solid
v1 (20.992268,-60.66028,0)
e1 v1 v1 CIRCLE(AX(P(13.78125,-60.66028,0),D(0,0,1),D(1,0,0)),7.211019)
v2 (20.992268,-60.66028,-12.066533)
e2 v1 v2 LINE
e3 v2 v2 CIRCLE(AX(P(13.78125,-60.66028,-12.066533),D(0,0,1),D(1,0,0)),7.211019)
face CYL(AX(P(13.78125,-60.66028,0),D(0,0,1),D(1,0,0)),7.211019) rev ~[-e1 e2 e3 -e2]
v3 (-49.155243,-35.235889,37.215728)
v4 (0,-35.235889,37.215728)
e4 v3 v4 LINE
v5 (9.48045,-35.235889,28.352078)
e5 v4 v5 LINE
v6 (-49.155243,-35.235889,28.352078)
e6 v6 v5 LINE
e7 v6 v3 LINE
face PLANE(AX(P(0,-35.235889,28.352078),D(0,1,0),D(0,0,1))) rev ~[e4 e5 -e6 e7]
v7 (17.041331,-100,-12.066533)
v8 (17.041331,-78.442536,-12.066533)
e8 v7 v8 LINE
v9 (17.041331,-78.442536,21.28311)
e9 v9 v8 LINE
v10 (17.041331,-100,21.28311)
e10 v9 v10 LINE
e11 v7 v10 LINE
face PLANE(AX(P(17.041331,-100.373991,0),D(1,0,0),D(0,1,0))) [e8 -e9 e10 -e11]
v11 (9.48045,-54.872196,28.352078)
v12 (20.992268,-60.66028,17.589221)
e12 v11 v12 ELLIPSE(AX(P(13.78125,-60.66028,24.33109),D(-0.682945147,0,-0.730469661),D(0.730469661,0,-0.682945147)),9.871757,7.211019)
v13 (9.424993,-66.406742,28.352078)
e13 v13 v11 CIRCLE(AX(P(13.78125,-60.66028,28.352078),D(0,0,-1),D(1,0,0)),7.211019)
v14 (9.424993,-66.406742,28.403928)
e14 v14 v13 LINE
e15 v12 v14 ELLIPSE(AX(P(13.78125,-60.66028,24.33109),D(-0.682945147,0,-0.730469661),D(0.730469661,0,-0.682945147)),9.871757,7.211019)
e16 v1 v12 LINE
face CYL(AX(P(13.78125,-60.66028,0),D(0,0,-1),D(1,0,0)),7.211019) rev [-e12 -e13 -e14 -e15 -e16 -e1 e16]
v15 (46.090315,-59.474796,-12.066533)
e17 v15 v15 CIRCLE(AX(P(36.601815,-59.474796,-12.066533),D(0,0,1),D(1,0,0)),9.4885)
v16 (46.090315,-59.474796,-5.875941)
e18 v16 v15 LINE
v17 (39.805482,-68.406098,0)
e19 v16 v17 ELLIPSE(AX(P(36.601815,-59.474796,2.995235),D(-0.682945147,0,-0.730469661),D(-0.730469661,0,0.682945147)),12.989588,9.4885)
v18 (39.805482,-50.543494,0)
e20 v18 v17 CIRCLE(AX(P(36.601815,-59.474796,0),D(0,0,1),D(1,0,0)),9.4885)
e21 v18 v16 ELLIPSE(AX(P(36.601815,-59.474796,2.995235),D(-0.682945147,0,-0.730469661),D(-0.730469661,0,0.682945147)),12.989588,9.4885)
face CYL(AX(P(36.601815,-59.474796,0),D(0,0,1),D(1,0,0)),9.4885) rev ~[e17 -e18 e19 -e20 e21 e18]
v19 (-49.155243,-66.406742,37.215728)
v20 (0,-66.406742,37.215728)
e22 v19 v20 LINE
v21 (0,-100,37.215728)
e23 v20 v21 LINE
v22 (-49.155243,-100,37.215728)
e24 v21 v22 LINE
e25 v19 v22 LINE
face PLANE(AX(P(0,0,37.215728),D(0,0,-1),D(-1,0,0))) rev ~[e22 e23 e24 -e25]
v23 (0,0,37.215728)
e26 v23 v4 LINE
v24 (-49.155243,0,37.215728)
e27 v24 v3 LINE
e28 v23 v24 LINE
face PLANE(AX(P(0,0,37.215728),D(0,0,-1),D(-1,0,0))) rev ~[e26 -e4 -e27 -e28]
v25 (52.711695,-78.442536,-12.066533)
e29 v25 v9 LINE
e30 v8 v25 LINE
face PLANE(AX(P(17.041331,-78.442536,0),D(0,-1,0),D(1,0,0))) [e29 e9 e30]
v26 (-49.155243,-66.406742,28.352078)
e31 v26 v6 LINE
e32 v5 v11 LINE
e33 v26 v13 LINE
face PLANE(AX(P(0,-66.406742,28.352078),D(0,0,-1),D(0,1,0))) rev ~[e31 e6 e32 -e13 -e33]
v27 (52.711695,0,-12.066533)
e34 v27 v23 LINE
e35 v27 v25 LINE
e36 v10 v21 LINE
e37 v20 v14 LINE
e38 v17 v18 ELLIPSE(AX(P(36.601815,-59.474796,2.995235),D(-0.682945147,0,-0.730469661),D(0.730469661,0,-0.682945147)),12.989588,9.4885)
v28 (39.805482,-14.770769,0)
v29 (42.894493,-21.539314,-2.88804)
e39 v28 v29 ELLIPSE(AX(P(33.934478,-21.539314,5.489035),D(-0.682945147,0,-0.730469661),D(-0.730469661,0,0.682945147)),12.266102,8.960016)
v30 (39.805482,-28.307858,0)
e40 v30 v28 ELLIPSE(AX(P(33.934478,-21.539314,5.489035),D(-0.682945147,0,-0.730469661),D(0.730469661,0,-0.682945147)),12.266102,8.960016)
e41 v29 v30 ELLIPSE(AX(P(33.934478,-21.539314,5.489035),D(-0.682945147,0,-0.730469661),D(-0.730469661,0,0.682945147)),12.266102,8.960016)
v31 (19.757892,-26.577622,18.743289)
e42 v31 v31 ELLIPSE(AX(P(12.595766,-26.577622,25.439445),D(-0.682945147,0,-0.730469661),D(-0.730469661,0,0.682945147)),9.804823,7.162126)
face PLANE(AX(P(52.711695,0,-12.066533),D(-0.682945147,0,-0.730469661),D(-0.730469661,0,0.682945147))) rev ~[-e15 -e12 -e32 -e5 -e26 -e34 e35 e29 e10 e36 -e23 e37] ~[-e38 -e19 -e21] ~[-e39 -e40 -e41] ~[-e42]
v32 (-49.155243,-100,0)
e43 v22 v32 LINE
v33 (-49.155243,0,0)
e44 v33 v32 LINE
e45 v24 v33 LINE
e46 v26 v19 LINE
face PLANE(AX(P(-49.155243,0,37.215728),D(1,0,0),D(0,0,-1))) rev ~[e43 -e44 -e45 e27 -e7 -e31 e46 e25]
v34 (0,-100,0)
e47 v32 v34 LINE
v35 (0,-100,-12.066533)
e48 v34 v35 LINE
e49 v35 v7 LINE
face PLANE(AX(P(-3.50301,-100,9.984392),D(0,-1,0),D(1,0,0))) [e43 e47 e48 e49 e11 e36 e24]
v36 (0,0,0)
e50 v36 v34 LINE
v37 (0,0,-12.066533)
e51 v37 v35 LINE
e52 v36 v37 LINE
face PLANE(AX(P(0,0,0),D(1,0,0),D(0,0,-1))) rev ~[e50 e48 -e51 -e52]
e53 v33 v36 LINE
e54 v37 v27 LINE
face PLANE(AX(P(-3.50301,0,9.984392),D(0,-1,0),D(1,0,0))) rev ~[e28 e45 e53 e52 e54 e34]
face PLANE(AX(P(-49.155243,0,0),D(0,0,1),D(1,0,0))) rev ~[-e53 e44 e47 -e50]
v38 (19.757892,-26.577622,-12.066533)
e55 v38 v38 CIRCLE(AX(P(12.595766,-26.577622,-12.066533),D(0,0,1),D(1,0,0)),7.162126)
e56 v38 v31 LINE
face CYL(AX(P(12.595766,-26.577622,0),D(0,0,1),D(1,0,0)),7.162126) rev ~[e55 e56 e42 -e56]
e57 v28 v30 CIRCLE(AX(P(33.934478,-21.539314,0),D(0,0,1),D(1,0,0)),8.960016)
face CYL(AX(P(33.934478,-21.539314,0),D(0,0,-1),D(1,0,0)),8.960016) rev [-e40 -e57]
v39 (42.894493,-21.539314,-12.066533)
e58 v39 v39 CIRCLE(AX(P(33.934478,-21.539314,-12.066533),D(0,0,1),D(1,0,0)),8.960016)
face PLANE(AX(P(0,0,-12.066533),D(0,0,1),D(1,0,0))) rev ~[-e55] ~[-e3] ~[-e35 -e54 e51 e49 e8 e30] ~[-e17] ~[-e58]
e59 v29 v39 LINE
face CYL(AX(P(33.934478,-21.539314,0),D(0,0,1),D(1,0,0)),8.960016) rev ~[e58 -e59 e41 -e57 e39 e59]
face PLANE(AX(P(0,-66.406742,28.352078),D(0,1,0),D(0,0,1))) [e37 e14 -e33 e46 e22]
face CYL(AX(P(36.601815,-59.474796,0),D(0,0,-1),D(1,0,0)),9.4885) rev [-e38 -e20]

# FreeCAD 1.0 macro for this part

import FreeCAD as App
import Part
import Sketcher
Q = App.Units.Quantity

doc = App.newDocument("Part")
body = doc.addObject("PartDesign::Body", "Body")

sketch1 = body.newObject("Sketcher::SketchObject", "Sketch")
sketch1.AttachmentSupport = (doc.getObject("XZ_Plane"), [""])
sketch1.MapMode = "FlatFace"
sketch1.addGeometry([
    Part.LineSegment(App.Vector(-49, 37, 0), App.Vector(-49, 0, 0)),
    Part.LineSegment(App.Vector(-49, 0, 0), App.Vector(0, 0, 0)),
    Part.LineSegment(App.Vector(0, 0, 0), App.Vector(0, -12, 0)),
    Part.LineSegment(App.Vector(0, -12, 0), App.Vector(53, -12, 0)),
    Part.LineSegment(App.Vector(53, -12, 0), App.Vector(0, 37, 0)),
    Part.LineSegment(App.Vector(0, 37, 0), App.Vector(-49, 37, 0)),
], False)
sketch1.addConstraint([
    Sketcher.Constraint("Coincident", 0, 2, 1, 1),
    Sketcher.Constraint("Coincident", 1, 2, 2, 1),
    Sketcher.Constraint("Coincident", 2, 2, 3, 1),
    Sketcher.Constraint("Coincident", 3, 2, 4, 1),
    Sketcher.Constraint("Coincident", 4, 2, 5, 1),
    Sketcher.Constraint("Coincident", 5, 2, 0, 1),
    Sketcher.Constraint("Vertical", 0),
    Sketcher.Constraint("Horizontal", 1),
    Sketcher.Constraint("Vertical", 2),
    Sketcher.Constraint("Horizontal", 3),
    Sketcher.Constraint("Horizontal", 5),
    Sketcher.Constraint("Coincident", 1, 2, -1, 1),
    Sketcher.Constraint("PointOnObject", 4, 2, -2),
    Sketcher.Constraint("DistanceY", 0, 2, 0, 1, Q("37.215728 mm")),
    Sketcher.Constraint("DistanceX", 1, 1, 1, 2, Q("49.155243 mm")),
    Sketcher.Constraint("DistanceX", 3, 1, 3, 2, Q("52.711695 mm")),
    Sketcher.Constraint("DistanceY", 2, 2, 2, 1, Q("12.066533 mm")),
])
pad1 = body.newObject("PartDesign::Pad", "Pad")
pad1.Profile = sketch1
pad1.Length = 100

sketch2 = body.newObject("Sketcher::SketchObject", "Sketch001")
sketch2.AttachmentSupport = (doc.getObject("XY_Plane"), [""])
sketch2.MapMode = "FlatFace"
sketch2.addGeometry([
    Part.LineSegment(App.Vector(17, -78, 0), App.Vector(17, -100, 0)),
    Part.LineSegment(App.Vector(17, -100, 0), App.Vector(55, -100, 0)),
    Part.LineSegment(App.Vector(55, -100, 0), App.Vector(55, -78, 0)),
    Part.LineSegment(App.Vector(55, -78, 0), App.Vector(17, -78, 0)),
], False)
sketch2.addConstraint([
    Sketcher.Constraint("Coincident", 0, 2, 1, 1),
    Sketcher.Constraint("Coincident", 1, 2, 2, 1),
    Sketcher.Constraint("Coincident", 2, 2, 3, 1),
    Sketcher.Constraint("Coincident", 3, 2, 0, 1),
    Sketcher.Constraint("Vertical", 0),
    Sketcher.Constraint("Horizontal", 1),
    Sketcher.Constraint("Vertical", 2),
    Sketcher.Constraint("Horizontal", 3),
    Sketcher.Constraint("DistanceX", 1, 1, 1, 2, Q("38.231855 mm")),
    Sketcher.Constraint("DistanceY", 0, 2, 0, 1, Q("21.931455 mm")),
    Sketcher.Constraint("DistanceX", -1, 1, 0, 2, Q("17.041331 mm")),
    Sketcher.Constraint("DistanceY", 0, 2, -1, 1, Q("100.373991 mm")),
])
pocket1 = body.newObject("PartDesign::Pocket", "Pocket")
pocket1.Profile = sketch2
pocket1.Length = 75
pocket1.Midplane = True

sketch3 = body.newObject("Sketcher::SketchObject", "Sketch002")
sketch3.AttachmentSupport = (doc.getObject("YZ_Plane"), [""])
sketch3.MapMode = "FlatFace"
sketch3.addGeometry([
    Part.LineSegment(App.Vector(-66, 40, 0), App.Vector(-66, 28, 0)),
    Part.LineSegment(App.Vector(-66, 28, 0), App.Vector(-35, 28, 0)),
    Part.LineSegment(App.Vector(-35, 28, 0), App.Vector(-35, 40, 0)),
    Part.LineSegment(App.Vector(-35, 40, 0), App.Vector(-66, 40, 0)),
], False)
sketch3.addConstraint([
    Sketcher.Constraint("Coincident", 0, 2, 1, 1),
    Sketcher.Constraint("Coincident", 1, 2, 2, 1),
    Sketcher.Constraint("Coincident", 2, 2, 3, 1),
    Sketcher.Constraint("Coincident", 3, 2, 0, 1),
    Sketcher.Constraint("Vertical", 0),
    Sketcher.Constraint("Horizontal", 1),
    Sketcher.Constraint("Vertical", 2),
    Sketcher.Constraint("Horizontal", 3),
    Sketcher.Constraint("DistanceY", 0, 2, 0, 1, Q("11.40397 mm")),
    Sketcher.Constraint("DistanceX", 1, 1, 1, 2, Q("31.170852 mm")),
    Sketcher.Constraint("DistanceX", 0, 2, -1, 1, Q("66.406742 mm")),
    Sketcher.Constraint("DistanceY", -1, 1, 0, 2, Q("28.352078 mm")),
])
pocket2 = body.newObject("PartDesign::Pocket", "Pocket001")
pocket2.Profile = sketch3
pocket2.Length = 200
pocket2.Midplane = True

sketch4 = body.newObject("Sketcher::SketchObject", "Sketch003")
sketch4.AttachmentSupport = (doc.getObject("XY_Plane"), [""])
sketch4.MapMode = "FlatFace"
sketch4.addGeometry([
    Part.Circle(App.Vector(14, -61, 0), App.Vector(0, 0, 1), 7),
    Part.Circle(App.Vector(37, -59, 0), App.Vector(0, 0, 1), 9),
    Part.Circle(App.Vector(34, -22, 0), App.Vector(0, 0, 1), 9),
    Part.Circle(App.Vector(13, -27, 0), App.Vector(0, 0, 1), 7),
], False)
sketch4.addConstraint([
    Sketcher.Constraint("Diameter", 1, Q("18.976999 mm")),
    Sketcher.Constraint("Diameter", 2, Q("17.920031 mm")),
    Sketcher.Constraint("Diameter", 0, Q("14.422038 mm")),
    Sketcher.Constraint("Diameter", 3, Q("14.324252 mm")),
    Sketcher.Constraint("DistanceX", -1, 1, 0, 3, Q("13.78125 mm")),
    Sketcher.Constraint("DistanceY", 0, 3, -1, 1, Q("60.66028 mm")),
    Sketcher.Constraint("DistanceY", 3, 3, -1, 1, Q("26.577622 mm")),
    Sketcher.Constraint("DistanceX", 0, 3, 2, 3, Q("20.153228 mm")),
    Sketcher.Constraint("DistanceX", 3, 3, 2, 3, Q("21.338711 mm")),
    Sketcher.Constraint("DistanceX", 3, 3, 1, 3, Q("24.006049 mm")),
    Sketcher.Constraint("DistanceY", 1, 3, -1, 1, Q("59.474796 mm")),
    Sketcher.Constraint("DistanceY", 2, 3, -1, 1, Q("21.539314 mm")),
])
pocket3 = body.newObject("PartDesign::Pocket", "Pocket002")
pocket3.Profile = sketch4
pocket3.Length = 5000
pocket3.Midplane = True

doc.recompute()
